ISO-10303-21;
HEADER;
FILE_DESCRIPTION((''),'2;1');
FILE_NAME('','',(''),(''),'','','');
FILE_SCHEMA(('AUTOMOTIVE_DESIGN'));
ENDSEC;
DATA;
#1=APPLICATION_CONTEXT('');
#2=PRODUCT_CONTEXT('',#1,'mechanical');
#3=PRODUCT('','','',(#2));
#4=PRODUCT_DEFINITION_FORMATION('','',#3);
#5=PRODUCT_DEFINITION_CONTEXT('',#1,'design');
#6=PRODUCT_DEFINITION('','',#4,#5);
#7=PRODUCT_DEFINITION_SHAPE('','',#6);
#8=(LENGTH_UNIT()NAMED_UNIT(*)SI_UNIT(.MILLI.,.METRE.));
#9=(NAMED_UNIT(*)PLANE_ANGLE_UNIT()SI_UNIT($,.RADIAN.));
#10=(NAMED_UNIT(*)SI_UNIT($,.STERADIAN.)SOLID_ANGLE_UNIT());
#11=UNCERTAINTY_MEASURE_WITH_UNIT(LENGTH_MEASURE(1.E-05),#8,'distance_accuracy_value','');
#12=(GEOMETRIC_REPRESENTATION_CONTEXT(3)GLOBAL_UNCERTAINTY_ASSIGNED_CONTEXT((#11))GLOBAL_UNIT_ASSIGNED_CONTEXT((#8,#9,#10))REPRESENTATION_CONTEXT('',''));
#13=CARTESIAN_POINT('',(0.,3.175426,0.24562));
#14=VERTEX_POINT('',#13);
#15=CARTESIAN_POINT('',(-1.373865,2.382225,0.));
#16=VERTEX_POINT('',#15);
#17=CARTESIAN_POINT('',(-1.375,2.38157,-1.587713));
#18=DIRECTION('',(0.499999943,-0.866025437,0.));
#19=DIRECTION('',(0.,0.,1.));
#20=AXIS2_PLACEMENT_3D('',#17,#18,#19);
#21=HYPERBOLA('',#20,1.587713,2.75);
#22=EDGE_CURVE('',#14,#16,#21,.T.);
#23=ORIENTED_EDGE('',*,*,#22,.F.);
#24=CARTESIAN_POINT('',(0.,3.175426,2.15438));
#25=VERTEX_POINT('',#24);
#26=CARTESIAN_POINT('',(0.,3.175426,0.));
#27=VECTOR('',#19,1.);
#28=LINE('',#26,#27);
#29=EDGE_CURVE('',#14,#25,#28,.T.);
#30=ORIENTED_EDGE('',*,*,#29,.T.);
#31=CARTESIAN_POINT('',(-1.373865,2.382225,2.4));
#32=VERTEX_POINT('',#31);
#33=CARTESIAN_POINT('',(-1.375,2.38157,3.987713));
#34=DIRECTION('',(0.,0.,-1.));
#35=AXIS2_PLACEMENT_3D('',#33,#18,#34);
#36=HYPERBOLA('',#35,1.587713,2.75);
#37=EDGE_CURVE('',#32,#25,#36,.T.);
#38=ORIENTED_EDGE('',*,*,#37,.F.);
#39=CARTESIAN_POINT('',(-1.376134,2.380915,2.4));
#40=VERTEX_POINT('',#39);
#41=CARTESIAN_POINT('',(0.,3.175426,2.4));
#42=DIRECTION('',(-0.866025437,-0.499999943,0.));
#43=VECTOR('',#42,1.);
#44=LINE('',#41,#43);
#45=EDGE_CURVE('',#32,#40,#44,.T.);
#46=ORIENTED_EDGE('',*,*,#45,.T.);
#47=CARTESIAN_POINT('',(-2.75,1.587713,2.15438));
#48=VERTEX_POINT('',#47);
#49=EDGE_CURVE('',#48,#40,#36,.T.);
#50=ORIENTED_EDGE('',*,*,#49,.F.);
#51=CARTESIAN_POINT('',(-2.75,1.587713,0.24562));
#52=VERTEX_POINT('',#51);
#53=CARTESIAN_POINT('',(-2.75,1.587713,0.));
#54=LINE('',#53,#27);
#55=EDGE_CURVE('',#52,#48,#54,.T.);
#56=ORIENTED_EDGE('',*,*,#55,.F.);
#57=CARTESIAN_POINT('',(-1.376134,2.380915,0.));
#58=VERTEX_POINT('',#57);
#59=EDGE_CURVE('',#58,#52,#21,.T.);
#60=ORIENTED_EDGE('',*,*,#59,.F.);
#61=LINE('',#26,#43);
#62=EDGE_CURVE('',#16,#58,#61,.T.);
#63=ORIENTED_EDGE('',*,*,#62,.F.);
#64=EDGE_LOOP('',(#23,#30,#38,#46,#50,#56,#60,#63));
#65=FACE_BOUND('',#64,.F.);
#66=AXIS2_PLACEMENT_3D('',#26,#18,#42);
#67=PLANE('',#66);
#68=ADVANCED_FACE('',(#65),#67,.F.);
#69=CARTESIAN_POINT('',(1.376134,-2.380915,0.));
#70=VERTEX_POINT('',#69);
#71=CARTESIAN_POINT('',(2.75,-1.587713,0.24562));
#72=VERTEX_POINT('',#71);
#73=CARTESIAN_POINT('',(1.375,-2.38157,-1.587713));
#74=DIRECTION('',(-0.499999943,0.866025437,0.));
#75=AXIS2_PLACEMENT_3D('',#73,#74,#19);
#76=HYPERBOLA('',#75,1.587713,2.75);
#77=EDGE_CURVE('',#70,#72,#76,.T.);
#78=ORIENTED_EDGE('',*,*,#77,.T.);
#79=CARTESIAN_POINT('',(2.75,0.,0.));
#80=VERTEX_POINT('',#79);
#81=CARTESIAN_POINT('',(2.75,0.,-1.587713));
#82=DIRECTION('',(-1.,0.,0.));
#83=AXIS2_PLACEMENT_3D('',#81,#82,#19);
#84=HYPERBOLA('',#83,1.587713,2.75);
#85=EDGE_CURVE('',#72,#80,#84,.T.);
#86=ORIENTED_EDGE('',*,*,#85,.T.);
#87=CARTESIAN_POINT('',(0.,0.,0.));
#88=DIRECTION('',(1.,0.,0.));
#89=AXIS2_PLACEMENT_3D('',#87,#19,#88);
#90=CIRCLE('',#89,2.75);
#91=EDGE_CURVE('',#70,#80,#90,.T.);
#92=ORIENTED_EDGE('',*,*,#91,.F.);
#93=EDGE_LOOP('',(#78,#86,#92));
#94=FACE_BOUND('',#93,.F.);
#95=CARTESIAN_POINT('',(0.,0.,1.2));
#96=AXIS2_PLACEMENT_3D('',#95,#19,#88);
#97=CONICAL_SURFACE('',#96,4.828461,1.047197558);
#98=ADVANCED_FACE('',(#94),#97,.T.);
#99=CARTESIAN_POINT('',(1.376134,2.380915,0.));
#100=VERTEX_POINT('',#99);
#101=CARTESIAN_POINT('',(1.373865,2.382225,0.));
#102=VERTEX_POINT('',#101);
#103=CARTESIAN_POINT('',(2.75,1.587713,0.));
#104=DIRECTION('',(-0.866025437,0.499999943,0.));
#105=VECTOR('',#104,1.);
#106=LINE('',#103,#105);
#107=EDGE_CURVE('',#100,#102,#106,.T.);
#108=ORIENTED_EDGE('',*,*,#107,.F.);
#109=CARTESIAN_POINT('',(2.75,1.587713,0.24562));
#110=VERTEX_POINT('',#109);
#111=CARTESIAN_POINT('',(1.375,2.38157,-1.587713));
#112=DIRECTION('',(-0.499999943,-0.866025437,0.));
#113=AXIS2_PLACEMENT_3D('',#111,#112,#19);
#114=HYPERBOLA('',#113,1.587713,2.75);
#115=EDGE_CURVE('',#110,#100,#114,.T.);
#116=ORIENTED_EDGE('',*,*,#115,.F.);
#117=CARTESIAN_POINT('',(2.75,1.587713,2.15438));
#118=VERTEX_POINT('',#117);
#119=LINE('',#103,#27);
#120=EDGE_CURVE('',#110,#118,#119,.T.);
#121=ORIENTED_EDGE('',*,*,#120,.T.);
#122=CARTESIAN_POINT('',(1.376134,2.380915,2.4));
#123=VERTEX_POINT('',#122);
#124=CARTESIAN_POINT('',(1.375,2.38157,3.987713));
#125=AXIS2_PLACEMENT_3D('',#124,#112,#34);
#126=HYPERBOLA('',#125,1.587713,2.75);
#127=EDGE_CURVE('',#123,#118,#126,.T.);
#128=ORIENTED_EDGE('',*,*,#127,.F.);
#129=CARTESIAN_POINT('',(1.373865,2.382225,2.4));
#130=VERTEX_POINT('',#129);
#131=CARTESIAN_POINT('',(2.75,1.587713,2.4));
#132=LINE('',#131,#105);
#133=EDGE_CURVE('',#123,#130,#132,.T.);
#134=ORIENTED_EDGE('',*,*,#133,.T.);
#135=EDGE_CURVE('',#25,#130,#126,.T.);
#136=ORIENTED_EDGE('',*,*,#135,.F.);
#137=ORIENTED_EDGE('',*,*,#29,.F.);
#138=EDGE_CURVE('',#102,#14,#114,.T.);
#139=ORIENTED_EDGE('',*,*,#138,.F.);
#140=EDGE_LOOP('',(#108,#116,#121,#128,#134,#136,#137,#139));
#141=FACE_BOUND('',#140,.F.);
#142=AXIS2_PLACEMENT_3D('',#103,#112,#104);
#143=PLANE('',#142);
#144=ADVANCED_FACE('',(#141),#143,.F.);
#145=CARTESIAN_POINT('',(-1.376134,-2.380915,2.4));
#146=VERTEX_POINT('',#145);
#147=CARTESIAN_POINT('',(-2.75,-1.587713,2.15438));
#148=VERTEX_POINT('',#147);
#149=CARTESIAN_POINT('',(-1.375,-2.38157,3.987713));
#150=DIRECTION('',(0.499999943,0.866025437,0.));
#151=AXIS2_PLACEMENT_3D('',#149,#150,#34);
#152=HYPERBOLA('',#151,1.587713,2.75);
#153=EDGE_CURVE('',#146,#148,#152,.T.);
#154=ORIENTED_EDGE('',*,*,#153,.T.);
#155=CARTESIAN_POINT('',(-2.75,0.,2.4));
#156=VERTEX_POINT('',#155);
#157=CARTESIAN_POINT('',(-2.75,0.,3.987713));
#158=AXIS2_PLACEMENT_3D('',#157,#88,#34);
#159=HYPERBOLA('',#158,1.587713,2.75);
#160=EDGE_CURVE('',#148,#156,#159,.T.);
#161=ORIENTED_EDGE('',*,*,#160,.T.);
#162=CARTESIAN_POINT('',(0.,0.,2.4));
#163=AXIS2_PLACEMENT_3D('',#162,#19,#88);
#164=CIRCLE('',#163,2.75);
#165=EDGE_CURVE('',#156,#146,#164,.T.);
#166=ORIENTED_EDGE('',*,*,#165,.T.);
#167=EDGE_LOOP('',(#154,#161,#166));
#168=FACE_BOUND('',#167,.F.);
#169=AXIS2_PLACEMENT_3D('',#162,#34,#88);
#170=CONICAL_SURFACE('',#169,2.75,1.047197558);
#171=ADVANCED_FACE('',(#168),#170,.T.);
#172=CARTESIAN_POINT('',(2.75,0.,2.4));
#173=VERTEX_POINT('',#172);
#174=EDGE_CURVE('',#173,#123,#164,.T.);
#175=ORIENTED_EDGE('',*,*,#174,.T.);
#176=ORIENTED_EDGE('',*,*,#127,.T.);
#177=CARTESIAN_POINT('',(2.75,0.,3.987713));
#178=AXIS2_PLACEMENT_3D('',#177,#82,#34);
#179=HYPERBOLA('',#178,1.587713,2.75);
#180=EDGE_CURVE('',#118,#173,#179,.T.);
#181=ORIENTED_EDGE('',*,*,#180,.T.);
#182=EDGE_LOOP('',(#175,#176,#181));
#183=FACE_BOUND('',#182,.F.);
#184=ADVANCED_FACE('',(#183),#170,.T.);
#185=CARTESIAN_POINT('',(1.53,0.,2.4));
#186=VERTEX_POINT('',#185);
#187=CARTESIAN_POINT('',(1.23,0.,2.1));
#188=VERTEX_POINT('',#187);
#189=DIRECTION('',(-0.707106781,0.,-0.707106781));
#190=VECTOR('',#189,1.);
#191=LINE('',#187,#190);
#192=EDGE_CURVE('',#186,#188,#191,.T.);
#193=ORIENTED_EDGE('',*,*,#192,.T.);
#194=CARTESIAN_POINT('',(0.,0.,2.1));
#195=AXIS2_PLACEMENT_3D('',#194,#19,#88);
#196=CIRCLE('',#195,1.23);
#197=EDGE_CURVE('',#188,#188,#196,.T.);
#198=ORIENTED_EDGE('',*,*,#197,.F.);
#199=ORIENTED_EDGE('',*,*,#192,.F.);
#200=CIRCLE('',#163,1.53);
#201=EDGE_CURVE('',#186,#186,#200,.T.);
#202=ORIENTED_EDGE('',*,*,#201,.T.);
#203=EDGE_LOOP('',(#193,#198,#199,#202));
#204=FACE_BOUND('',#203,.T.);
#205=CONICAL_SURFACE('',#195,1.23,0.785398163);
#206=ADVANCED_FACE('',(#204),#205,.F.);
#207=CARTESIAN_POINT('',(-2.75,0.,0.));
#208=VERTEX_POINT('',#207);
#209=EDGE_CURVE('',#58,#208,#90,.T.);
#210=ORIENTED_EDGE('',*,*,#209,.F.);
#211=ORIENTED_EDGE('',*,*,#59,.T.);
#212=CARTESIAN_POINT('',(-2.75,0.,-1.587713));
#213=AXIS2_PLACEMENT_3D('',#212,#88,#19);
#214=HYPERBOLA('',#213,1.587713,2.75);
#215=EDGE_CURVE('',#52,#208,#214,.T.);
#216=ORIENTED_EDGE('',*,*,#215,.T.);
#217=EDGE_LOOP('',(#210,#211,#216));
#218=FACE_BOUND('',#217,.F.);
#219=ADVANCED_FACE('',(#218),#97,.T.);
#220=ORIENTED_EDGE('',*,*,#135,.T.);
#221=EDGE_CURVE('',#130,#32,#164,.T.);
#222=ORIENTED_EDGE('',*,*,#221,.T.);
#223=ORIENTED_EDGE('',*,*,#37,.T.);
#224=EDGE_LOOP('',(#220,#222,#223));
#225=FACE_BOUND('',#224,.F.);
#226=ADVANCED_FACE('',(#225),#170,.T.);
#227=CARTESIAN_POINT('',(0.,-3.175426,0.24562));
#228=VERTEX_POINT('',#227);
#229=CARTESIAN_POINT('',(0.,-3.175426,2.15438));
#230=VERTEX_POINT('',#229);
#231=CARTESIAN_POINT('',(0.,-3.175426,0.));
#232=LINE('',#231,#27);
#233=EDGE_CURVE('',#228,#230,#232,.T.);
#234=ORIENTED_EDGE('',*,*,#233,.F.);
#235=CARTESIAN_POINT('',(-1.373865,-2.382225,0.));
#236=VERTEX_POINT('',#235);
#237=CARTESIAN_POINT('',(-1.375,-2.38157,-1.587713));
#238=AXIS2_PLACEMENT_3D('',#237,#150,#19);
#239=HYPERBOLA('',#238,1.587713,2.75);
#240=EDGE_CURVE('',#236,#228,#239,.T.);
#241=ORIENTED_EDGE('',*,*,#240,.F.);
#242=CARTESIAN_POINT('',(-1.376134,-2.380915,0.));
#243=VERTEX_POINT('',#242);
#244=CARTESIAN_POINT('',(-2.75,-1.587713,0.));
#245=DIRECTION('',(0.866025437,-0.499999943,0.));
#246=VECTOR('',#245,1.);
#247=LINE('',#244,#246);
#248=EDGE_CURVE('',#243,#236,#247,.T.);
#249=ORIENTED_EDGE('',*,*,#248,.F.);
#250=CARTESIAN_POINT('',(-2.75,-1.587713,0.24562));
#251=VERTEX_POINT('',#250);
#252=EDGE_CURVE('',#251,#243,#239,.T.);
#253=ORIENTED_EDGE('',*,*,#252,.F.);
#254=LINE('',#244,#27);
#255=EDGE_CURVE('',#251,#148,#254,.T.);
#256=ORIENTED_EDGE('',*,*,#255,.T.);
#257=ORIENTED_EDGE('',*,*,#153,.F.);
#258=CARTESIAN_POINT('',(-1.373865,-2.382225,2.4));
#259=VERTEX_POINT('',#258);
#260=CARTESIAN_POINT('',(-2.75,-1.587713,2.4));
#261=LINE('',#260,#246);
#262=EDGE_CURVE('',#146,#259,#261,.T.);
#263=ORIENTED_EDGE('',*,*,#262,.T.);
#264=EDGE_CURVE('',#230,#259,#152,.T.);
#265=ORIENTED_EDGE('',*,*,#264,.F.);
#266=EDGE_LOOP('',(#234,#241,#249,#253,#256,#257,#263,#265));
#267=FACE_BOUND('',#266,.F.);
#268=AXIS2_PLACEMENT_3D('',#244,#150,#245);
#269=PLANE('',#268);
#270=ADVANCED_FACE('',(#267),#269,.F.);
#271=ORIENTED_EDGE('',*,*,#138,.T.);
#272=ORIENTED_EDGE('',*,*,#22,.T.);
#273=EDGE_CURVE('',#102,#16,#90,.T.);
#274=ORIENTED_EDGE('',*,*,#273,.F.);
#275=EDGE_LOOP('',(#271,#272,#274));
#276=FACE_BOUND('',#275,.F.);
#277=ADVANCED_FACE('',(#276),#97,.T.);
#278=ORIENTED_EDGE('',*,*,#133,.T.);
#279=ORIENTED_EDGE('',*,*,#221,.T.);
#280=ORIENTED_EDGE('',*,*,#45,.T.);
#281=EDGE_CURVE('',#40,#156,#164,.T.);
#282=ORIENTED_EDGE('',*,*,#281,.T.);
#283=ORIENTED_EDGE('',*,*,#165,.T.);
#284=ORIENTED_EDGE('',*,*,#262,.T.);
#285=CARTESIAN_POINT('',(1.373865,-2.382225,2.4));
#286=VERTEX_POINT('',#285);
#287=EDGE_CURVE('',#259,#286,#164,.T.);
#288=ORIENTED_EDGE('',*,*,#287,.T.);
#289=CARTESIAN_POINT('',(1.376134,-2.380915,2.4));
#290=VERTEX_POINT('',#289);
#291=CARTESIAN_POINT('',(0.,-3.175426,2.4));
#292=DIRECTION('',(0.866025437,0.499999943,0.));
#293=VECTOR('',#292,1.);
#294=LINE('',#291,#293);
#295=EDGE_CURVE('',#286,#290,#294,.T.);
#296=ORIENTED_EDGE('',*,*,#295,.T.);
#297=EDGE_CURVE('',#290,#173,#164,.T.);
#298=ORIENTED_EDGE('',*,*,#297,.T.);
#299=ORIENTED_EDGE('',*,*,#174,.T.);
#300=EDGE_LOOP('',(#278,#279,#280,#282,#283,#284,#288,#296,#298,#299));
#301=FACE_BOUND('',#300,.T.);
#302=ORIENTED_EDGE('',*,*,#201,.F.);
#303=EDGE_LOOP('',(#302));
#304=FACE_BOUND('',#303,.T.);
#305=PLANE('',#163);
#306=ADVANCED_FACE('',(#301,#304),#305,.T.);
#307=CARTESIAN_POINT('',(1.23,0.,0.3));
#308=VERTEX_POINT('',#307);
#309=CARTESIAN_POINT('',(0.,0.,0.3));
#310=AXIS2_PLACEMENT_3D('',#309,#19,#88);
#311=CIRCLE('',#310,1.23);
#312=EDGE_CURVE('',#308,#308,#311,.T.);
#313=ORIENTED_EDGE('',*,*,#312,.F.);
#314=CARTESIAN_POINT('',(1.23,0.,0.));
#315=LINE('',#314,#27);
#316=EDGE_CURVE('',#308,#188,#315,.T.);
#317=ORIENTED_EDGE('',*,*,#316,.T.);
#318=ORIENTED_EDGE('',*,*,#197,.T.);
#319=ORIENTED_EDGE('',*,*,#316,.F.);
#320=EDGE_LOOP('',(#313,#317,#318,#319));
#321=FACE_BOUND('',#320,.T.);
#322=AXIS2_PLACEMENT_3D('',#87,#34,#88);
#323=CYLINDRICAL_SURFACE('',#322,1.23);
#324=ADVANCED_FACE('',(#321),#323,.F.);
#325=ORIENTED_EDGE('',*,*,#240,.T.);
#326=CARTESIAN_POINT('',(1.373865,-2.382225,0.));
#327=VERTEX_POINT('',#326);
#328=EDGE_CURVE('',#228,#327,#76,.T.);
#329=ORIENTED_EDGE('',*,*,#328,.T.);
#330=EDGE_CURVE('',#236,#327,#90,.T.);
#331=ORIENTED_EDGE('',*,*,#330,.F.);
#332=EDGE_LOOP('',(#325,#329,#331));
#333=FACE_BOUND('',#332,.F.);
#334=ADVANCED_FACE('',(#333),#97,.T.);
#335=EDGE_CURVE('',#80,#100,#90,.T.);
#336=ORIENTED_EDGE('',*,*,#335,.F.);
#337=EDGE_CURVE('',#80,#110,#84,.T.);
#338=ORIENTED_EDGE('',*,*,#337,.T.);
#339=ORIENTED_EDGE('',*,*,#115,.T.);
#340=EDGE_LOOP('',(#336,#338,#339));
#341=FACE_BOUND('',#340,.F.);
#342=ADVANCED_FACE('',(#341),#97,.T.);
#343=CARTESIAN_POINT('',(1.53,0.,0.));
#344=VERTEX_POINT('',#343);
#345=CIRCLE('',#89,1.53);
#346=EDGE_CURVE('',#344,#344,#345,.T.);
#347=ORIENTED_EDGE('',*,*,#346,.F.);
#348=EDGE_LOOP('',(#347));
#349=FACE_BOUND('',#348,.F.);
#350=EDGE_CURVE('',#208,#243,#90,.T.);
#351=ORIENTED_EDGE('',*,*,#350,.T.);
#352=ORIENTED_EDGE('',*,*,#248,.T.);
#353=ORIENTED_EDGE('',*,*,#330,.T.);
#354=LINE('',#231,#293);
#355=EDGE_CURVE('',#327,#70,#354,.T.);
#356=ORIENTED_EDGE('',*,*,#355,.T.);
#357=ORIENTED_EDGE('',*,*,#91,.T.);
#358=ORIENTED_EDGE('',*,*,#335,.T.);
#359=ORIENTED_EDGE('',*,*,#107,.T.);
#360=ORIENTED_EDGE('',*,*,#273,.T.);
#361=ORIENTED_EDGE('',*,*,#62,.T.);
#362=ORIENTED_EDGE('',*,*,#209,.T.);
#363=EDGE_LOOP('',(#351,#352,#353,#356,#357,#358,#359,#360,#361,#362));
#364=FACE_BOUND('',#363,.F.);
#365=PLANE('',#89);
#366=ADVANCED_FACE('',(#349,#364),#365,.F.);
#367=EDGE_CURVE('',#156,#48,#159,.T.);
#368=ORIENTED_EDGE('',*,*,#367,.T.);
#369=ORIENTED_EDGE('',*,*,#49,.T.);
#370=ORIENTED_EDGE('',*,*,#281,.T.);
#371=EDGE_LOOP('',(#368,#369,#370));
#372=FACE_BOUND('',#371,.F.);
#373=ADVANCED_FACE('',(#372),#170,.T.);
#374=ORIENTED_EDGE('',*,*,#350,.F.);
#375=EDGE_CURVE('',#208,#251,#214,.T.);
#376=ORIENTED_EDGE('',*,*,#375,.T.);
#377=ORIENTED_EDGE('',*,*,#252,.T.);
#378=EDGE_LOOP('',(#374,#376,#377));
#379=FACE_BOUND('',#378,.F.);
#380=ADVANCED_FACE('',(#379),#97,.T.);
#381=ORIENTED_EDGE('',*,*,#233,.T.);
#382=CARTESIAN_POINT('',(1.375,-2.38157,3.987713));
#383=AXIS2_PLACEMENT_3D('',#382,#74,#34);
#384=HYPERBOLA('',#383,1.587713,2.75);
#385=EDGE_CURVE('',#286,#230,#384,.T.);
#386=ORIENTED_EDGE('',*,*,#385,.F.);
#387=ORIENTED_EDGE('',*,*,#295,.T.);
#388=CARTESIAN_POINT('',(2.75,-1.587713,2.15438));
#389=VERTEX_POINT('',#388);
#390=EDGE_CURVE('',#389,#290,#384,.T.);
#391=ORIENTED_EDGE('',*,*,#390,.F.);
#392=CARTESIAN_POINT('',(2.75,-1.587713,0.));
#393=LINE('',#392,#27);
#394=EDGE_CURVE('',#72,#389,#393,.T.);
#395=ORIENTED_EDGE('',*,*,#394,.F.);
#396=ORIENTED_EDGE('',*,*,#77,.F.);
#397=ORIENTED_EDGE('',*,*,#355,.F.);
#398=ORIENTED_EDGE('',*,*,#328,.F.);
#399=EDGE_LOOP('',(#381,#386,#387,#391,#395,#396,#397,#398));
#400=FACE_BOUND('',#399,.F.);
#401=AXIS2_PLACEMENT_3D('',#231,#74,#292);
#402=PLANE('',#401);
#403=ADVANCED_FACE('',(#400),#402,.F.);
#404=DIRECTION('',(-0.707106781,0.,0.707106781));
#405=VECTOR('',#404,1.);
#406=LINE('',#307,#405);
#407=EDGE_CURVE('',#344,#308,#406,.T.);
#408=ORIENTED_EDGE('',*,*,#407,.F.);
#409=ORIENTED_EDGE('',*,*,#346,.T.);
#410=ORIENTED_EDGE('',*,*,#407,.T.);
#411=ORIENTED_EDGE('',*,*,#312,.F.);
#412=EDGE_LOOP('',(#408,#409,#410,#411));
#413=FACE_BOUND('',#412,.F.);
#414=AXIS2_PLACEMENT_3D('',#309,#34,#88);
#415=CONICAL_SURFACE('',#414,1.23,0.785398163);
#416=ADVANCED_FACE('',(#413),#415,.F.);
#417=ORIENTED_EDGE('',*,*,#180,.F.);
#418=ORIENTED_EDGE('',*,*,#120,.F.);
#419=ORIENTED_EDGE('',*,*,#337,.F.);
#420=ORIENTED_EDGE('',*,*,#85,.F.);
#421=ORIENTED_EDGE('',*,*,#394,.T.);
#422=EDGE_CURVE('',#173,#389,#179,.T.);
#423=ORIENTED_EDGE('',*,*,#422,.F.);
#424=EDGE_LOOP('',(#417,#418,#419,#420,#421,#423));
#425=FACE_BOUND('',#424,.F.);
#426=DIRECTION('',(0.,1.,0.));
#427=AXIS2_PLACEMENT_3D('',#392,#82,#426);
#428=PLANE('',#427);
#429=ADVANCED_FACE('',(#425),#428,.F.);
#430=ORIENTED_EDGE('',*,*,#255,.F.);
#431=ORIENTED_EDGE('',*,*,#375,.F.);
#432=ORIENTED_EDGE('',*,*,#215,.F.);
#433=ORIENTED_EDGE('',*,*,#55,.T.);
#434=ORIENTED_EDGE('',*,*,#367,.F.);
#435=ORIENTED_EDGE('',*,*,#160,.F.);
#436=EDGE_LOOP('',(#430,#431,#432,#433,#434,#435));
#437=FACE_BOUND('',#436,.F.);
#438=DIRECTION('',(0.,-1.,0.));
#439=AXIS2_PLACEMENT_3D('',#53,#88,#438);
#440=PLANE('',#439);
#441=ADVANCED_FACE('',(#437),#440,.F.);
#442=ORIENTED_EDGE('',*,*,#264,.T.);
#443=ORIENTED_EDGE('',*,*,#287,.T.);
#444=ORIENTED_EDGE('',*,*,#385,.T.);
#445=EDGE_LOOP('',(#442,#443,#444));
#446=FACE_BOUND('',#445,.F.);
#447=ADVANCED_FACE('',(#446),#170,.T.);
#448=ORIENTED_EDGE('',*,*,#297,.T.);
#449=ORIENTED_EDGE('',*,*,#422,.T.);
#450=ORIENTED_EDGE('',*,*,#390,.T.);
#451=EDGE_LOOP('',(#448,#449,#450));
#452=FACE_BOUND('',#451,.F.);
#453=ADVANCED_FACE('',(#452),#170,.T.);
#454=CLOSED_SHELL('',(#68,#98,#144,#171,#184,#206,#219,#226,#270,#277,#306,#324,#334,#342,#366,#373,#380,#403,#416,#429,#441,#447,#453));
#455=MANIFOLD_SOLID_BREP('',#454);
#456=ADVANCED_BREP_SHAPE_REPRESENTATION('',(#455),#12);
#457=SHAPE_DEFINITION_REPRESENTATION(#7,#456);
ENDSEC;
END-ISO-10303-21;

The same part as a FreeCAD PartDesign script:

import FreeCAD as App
import Part
import Sketcher

V = App.Vector
Q = App.Units.Quantity


def edges_at(feature, points):
    """Names of the edges that pass closest to the given points."""
    edges = feature.Shape.Edges
    near = lambda p: min(range(len(edges)), key=lambda i: edges[i].distToShape(Part.Vertex(*p))[0])
    return sorted({f"Edge{near(p) + 1}" for p in points})

doc = App.newDocument("Part")
body = doc.addObject("PartDesign::Body", "Body")

# Sketch on XY plane
sketch1 = doc.addObject("Sketcher::SketchObject", "Sketch")
body.addObject(sketch1)
sketch1.AttachmentSupport = (doc.XY_Plane, [""])
sketch1.MapMode = "FlatFace"
sketch1.addGeometry([
    Part.LineSegment(V(2.8, -1.6, 0), V(2.8, 1.6, 0)),  # 0
    Part.LineSegment(V(2.8, 1.6, 0), V(0, 3.2, 0)),  # 1
    Part.LineSegment(V(0, 3.2, 0), V(-2.8, 1.6, 0)),  # 2
    Part.LineSegment(V(-2.8, 1.6, 0), V(-2.8, -1.6, 0)),  # 3
    Part.LineSegment(V(-2.8, -1.6, 0), V(0, -3.2, 0)),  # 4
    Part.LineSegment(V(0, -3.2, 0), V(2.8, -1.6, 0)),  # 5
    Part.Circle(V(0, 0, 0), V(0, 0, 1), 1.2),  # 6
], False)
sketch1.addConstraint([
    Sketcher.Constraint("Coincident", 0, 2, 1, 1),
    Sketcher.Constraint("Coincident", 1, 2, 2, 1),
    Sketcher.Constraint("Coincident", 2, 2, 3, 1),
    Sketcher.Constraint("Coincident", 3, 2, 4, 1),
    Sketcher.Constraint("Coincident", 4, 2, 5, 1),
    Sketcher.Constraint("Coincident", 5, 2, 0, 1),
    Sketcher.Constraint("Vertical", 0),
    Sketcher.Constraint("Vertical", 3),
    Sketcher.Constraint("Coincident", 6, 3, -1, 1),
    Sketcher.Constraint("Symmetric", 0, 2, 3, 2, -1, 1),
    Sketcher.Constraint("Symmetric", 1, 2, 4, 2, -1, 1),
    Sketcher.Constraint("PointOnObject", 1, 2, -2),
    Sketcher.Constraint("Parallel", 2, 5),
    Sketcher.Constraint("Horizontal", 0, 2, 2, 2),
    Sketcher.Constraint("Diameter", 6, 2.46),
    Sketcher.Constraint("Angle", 1, Q("150.000004 deg")),
    Sketcher.Constraint("DistanceX", 2, 2, 0, 2, 5.5),
    Sketcher.Constraint("DistanceY", 0, 1, 0, 2, 3.175426),
])
pad1 = doc.addObject("PartDesign::Pad", "Pad")
body.addObject(pad1)
pad1.Profile = sketch1
pad1.Length = 2.4

# Sketch on XZ plane
sketch2 = doc.addObject("Sketcher::SketchObject", "Sketch001")
body.addObject(sketch2)
sketch2.AttachmentSupport = (doc.XZ_Plane, [""])
sketch2.MapMode = "FlatFace"
sketch2.addGeometry([
    Part.LineSegment(V(4.8, 0, 0), V(4.8, 1.2, 0)),  # 0
    Part.LineSegment(V(4.8, 1.2, 0), V(2.8, 0, 0)),  # 1
    Part.LineSegment(V(2.8, 0, 0), V(4.8, 0, 0)),  # 2
    Part.LineSegment(V(4.8, 2.4, 0), V(2.8, 2.4, 0)),  # 3
    Part.LineSegment(V(2.8, 2.4, 0), V(4.8, 1.2, 0)),  # 4
    Part.LineSegment(V(4.8, 1.2, 0), V(4.8, 2.4, 0)),  # 5
], False)
sketch2.addConstraint([
    Sketcher.Constraint("Coincident", 0, 2, 1, 1),
    Sketcher.Constraint("Coincident", 1, 2, 2, 1),
    Sketcher.Constraint("Coincident", 2, 2, 0, 1),
    Sketcher.Constraint("Coincident", 3, 2, 4, 1),
    Sketcher.Constraint("Coincident", 4, 2, 5, 1),
    Sketcher.Constraint("Coincident", 5, 2, 3, 1),
    Sketcher.Constraint("Vertical", 0),
    Sketcher.Constraint("Horizontal", 2),
    Sketcher.Constraint("Horizontal", 3),
    Sketcher.Constraint("Vertical", 5),
    Sketcher.Constraint("Coincident", 4, 2, 0, 2),
    Sketcher.Constraint("PointOnObject", 1, 2, -1),
    Sketcher.Constraint("Vertical", 1, 2, 3, 2),
    Sketcher.Constraint("Equal", 0, 5),
    Sketcher.Constraint("Angle", 1, Q("-150 deg")),
    Sketcher.Constraint("DistanceY", 0, 1, 0, 2, 1.2),
    Sketcher.Constraint("DistanceX", -1, 1, 1, 2, 2.75),
])
groove = doc.addObject("PartDesign::Groove", "Groove")
body.addObject(groove)
groove.Profile = sketch2
groove.ReferenceAxis = (sketch2, ["V_Axis"])
groove.Angle = 360
doc.recompute()

chamfer = doc.addObject("PartDesign::Chamfer", "Chamfer")
body.addObject(chamfer)
chamfer.Base = (groove, edges_at(groove, [(1.23, 0, 1.2), (-1.23, 0, 0), (-1.23, 0, 2.4)]))
chamfer.Size = 0.3

doc.recompute()
